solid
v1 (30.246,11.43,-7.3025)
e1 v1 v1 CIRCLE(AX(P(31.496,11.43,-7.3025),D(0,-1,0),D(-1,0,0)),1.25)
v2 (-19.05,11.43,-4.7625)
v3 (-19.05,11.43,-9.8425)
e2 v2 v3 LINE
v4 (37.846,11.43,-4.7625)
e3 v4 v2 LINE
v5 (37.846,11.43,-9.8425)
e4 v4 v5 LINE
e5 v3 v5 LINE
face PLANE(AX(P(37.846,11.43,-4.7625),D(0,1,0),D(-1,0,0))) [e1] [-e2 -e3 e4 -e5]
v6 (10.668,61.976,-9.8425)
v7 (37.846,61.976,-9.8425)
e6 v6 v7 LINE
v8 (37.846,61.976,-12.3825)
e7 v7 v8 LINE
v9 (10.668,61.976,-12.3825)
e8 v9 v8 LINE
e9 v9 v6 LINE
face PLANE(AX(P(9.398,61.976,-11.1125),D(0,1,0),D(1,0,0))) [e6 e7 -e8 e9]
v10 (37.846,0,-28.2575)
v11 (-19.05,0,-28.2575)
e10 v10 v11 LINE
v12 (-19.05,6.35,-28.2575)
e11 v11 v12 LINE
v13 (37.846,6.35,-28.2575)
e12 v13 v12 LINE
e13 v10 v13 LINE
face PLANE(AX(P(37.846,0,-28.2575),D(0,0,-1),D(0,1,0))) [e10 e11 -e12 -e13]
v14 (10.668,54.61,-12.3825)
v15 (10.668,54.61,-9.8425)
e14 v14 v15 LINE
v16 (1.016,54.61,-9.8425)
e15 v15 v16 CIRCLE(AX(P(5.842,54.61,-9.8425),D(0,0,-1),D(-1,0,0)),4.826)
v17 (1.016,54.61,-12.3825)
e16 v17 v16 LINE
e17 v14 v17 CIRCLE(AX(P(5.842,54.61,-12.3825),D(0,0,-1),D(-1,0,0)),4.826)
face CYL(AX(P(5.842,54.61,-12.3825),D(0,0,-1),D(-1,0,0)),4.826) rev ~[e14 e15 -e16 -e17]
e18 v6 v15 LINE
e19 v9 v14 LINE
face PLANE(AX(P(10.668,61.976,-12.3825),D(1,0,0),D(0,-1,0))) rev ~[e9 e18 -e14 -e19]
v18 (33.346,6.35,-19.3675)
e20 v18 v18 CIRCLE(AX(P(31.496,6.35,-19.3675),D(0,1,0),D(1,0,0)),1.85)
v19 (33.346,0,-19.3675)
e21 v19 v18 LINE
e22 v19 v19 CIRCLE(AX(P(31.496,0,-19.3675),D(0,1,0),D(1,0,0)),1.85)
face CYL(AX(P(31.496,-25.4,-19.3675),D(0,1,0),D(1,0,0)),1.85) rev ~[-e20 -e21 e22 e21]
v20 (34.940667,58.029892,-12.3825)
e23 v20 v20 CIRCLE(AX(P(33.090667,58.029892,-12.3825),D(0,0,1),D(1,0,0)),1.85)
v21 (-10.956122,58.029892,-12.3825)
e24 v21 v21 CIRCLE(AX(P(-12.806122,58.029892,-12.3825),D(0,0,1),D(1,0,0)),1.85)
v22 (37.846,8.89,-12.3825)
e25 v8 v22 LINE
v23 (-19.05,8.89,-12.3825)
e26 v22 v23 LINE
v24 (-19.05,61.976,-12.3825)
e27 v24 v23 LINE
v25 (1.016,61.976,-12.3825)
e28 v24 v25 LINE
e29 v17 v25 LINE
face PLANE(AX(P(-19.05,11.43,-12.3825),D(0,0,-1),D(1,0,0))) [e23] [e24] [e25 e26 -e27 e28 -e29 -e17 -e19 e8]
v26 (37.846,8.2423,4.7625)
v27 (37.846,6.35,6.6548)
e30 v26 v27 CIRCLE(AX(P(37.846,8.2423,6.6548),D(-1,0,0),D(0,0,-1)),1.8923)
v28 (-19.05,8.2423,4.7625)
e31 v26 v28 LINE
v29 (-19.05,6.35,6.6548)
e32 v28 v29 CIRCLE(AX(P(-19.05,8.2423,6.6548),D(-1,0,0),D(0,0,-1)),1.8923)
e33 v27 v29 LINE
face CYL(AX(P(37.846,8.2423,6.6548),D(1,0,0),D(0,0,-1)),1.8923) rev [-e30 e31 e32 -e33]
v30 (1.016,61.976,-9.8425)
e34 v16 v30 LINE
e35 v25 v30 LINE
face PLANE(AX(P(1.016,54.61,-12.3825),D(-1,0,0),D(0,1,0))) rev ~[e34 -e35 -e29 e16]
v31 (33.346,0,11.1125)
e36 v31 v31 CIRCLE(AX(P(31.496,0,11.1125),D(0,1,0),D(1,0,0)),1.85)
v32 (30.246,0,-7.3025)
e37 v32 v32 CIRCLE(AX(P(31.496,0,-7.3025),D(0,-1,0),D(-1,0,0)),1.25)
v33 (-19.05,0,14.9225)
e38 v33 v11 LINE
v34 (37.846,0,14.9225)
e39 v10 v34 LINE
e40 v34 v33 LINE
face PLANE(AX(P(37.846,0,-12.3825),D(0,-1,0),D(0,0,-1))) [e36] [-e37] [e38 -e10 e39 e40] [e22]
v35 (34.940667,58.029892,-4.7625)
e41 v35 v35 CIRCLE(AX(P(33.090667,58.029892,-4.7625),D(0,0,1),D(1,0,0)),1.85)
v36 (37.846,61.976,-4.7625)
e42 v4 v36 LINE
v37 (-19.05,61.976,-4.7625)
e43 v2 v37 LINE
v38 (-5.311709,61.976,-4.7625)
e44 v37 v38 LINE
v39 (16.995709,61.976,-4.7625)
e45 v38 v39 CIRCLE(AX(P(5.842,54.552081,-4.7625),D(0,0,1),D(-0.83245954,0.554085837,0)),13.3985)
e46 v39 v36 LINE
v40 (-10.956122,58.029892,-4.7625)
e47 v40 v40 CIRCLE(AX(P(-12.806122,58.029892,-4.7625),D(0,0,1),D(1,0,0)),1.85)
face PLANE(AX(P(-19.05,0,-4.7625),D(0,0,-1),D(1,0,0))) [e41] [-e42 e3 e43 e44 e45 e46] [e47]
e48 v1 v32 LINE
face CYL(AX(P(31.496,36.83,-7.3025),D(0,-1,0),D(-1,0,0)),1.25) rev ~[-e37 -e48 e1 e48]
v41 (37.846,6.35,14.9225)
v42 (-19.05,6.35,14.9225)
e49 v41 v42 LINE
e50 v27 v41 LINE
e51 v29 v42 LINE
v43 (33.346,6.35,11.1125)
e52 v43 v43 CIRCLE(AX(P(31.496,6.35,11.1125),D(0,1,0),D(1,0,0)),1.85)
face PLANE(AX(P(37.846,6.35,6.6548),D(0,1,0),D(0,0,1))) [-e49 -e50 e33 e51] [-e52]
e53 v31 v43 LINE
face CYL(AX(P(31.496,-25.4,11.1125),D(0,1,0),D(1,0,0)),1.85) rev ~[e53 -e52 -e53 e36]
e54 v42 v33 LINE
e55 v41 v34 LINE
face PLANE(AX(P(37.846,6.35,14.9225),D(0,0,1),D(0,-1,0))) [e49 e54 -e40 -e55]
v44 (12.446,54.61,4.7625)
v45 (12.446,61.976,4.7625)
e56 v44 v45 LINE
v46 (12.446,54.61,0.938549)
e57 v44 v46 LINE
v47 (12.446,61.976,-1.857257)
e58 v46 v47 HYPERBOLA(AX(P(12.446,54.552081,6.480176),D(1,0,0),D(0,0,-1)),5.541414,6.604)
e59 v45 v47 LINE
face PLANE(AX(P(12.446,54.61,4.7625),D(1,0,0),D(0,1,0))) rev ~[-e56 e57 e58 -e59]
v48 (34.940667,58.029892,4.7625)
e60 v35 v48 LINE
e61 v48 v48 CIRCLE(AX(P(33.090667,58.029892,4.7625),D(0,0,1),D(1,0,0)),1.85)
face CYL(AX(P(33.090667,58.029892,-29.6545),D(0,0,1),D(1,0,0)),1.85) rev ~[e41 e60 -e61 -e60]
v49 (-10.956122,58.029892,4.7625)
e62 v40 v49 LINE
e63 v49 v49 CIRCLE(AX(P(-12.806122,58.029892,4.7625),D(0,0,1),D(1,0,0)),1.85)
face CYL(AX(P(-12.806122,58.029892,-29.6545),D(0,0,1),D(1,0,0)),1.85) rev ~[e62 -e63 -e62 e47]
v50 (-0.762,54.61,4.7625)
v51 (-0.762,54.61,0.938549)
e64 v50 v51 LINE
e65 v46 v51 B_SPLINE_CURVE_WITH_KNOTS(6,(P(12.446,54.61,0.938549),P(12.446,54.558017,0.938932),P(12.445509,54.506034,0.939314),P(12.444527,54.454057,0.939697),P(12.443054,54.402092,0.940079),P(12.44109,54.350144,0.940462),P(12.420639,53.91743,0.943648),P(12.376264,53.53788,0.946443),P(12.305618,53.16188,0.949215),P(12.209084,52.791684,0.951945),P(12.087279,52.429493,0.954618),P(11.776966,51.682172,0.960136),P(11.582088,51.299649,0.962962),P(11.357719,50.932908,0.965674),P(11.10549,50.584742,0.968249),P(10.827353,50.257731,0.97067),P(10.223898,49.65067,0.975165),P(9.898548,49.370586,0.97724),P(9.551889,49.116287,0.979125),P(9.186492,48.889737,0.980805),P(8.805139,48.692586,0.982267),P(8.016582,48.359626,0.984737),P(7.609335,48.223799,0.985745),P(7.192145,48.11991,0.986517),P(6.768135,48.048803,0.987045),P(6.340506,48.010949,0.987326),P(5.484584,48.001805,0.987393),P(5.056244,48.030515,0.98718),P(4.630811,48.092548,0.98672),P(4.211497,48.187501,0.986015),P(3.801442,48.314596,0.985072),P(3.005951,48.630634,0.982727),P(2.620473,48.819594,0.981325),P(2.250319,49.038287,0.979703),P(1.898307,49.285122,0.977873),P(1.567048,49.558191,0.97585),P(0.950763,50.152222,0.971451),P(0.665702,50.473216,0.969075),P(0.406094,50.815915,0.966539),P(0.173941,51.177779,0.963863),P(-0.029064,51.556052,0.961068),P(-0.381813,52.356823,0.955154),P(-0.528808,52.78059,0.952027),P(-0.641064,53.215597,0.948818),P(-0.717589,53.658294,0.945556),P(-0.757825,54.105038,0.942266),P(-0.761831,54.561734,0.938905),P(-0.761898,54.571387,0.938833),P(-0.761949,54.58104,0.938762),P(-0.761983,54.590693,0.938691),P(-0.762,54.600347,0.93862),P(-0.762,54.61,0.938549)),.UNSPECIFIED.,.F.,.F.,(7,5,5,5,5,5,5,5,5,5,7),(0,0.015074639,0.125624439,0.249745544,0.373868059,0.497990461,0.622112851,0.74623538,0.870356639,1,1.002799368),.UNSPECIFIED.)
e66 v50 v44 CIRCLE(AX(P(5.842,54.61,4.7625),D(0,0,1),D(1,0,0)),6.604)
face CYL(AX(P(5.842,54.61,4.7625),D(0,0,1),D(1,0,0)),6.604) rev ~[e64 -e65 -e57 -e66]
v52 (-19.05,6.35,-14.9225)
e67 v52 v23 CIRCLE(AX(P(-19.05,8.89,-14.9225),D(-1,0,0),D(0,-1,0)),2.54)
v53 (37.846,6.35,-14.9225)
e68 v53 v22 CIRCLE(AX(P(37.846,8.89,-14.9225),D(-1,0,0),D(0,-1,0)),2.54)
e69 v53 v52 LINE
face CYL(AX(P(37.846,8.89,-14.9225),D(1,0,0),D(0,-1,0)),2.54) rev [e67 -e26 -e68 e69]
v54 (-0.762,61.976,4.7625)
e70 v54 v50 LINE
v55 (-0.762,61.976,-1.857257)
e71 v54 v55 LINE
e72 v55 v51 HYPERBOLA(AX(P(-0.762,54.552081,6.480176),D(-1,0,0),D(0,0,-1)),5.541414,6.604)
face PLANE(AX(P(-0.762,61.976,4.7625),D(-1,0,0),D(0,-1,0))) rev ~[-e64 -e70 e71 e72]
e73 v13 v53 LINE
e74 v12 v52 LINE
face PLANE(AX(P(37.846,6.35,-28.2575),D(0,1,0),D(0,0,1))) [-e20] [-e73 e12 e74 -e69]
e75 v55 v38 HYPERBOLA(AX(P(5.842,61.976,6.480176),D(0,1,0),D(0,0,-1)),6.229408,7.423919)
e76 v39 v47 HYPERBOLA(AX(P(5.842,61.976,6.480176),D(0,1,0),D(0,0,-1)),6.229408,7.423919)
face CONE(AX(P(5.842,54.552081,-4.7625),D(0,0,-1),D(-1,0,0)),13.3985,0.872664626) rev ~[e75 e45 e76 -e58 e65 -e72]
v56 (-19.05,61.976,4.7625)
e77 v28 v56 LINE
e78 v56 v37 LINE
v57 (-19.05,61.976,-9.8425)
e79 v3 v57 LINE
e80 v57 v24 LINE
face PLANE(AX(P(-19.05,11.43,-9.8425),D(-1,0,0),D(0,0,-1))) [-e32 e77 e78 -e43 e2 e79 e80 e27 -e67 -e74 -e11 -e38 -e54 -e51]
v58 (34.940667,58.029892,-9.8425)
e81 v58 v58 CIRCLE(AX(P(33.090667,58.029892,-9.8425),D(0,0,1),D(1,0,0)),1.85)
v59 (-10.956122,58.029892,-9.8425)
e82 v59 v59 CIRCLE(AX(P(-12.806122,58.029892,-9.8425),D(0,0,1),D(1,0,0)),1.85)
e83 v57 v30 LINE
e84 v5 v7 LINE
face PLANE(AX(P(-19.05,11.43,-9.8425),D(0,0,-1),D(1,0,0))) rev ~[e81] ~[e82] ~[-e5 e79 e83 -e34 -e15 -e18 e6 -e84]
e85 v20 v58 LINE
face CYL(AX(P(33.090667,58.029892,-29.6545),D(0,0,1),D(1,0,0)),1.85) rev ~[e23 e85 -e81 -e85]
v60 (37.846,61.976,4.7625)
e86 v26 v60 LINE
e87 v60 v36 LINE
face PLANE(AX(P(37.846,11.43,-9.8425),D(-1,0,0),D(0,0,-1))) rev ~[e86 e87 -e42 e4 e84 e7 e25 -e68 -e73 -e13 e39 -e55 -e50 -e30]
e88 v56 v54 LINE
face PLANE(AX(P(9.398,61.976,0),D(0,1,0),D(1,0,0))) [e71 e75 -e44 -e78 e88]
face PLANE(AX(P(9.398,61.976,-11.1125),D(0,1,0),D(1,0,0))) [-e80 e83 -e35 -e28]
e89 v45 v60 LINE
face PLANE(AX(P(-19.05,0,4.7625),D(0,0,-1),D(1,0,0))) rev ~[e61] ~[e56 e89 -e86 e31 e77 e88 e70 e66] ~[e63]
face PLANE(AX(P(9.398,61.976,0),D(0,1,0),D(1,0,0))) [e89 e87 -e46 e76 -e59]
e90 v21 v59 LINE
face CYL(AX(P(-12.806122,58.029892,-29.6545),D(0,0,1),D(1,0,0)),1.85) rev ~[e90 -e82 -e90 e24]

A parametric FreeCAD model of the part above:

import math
import FreeCAD as App
import Part
import Sketcher
Q = App.Units.Quantity


def faces_at(feature, points):
    """Names of the faces that lie closest to the given points."""
    faces = feature.Shape.Faces
    near = lambda p: min(range(len(faces)), key=lambda i: faces[i].distToShape(Part.Vertex(*p))[0])
    return sorted({f"Face{near(p) + 1}" for p in points})


def add_polygon(sketch, points):
    """Adds a closed chain of lines whose ends are joined by coincident constraints."""
    first, n = sketch.GeometryCount, len(points)
    for a, b in zip(points, points[1:] + points[:1]):
        sketch.addGeometry(Part.LineSegment(App.Vector(*a, 0), App.Vector(*b, 0)), False)
    for i in range(n):
        sketch.addConstraint(Sketcher.Constraint("Coincident", first + i, 2, first + (i + 1) % n, 1))

doc = App.newDocument("Part")
body = doc.addObject("PartDesign::Body", "Body")

sketch1 = body.newObject("Sketcher::SketchObject", "Sketch")
sketch1.AttachmentSupport = (doc.getObject("XZ_Plane"), [""])
sketch1.MapMode = "FlatFace"
add_polygon(sketch1, [(-19, -5), (-19, 5), (38, 5), (38, -5)])
sketch1.addConstraint([
    Sketcher.Constraint("Vertical", 0),
    Sketcher.Constraint("Horizontal", 1),
    Sketcher.Constraint("Vertical", 2),
    Sketcher.Constraint("Horizontal", 3),
    Sketcher.Constraint("DistanceX", 1, 1, 1, 2, Q("2.24 in")),
    Sketcher.Constraint("DistanceY", 0, 1, 0, 2, Q("0.375 in")),
    Sketcher.Constraint("DistanceX", 0, 2, -1, 1, Q("0.75 in")),
    Sketcher.Constraint("DistanceY", -1, 1, 0, 2, Q("0.1875 in")),
])
pad1 = body.newObject("PartDesign::Pad", "Pad")
pad1.Profile = sketch1
pad1.Length = Q("2.44 in")
pad1.Reversed = True
body2 = doc.addObject("PartDesign::Body", "Body001")

sketch2 = body2.newObject("Sketcher::SketchObject", "Sketch001")
sketch2.AttachmentSupport = (doc.getObject("XY_Plane001"), [""])
sketch2.MapMode = "FlatFace"
sketch2.AttachmentOffset = App.Placement(App.Vector(0, 0, -0.1875 * 25.4), App.Rotation())
sketch2.addGeometry(Part.Circle(App.Vector(6, 55, 0), App.Vector(0, 0, 1), 13), False)
sketch2.addConstraint([
    Sketcher.Constraint("Diameter", 0, Q("1.055 in")),
    Sketcher.Constraint("DistanceX", -1, 1, 0, 3, Q("0.23 in")),
    Sketcher.Constraint("DistanceY", -1, 1, 0, 3, 54.552081),
])
pad2 = body2.newObject("PartDesign::Pad", "Pad001")
pad2.Profile = sketch2
pad2.Length = Q("0.2315 in")
doc.recompute()

datumplane = body2.newObject("PartDesign::Plane", "DatumPlane")
datumplane.AttachmentSupport = (doc.getObject("XY_Plane001"), [""])
datumplane.MapMode = "FlatFace"
datumplane.AttachmentOffset = App.Placement(App.Vector(0, 0, -0.1875 * 25.4), App.Rotation())
draft = body2.newObject("PartDesign::Draft", "Draft")
draft.Base = (pad2, faces_at(pad2, [(19.241, 54.552, -1.822)]))
draft.NeutralPlane = (datumplane, [""])
draft.Angle = 50
draft.Reversed = False
doc.recompute()

boolean = body.newObject("PartDesign::Boolean", "Boolean")
boolean.Type = "Cut"
boolean.addObjects([body2])

sketch3 = body.newObject("Sketcher::SketchObject", "Sketch002")
sketch3.AttachmentSupport = (doc.getObject("XY_Plane"), [""])
sketch3.MapMode = "FlatFace"
sketch3.AttachmentOffset = App.Placement(App.Vector(0, 0, -0.1875 * 25.4), App.Rotation())
add_polygon(sketch3, [(38, 11), (38, 0), (-19, 0), (-19, 11)])
sketch3.addConstraint([
    Sketcher.Constraint("Vertical", 0),
    Sketcher.Constraint("Horizontal", 1),
    Sketcher.Constraint("Vertical", 2),
    Sketcher.Constraint("Horizontal", 3),
    Sketcher.Constraint("PointOnObject", 0, 2, -1),
    Sketcher.Constraint("DistanceX", 1, 2, 1, 1, Q("2.24 in")),
    Sketcher.Constraint("DistanceY", 0, 2, 0, 1, Q("0.45 in")),
    Sketcher.Constraint("DistanceX", -1, 1, 0, 2, Q("1.49 in")),
])
pad3 = body.newObject("PartDesign::Pad", "Pad002")
pad3.Profile = sketch3
pad3.Length = Q("0.3 in")
pad3.Reversed = True

sketch4 = body.newObject("Sketcher::SketchObject", "Sketch003")
sketch4.AttachmentSupport = (doc.getObject("XZ_Plane"), [""])
sketch4.MapMode = "FlatFace"
sketch4.AttachmentOffset = App.Placement(App.Vector(0, 0, -0.45 * 25.4), App.Rotation())
sketch4.addGeometry(Part.Circle(App.Vector(31.5, -7.3, 0), App.Vector(0, 0, 1), 1.2), False)
sketch4.addConstraint([
    Sketcher.Constraint("Diameter", 0, 2.5),
    Sketcher.Constraint("DistanceX", -1, 1, 0, 3, Q("1.24 in")),
    Sketcher.Constraint("DistanceY", 0, 3, -1, 1, Q("0.2875 in")),
])
doc.recompute()
hole = body.newObject("PartDesign::Hole", "Hole")
hole.Profile = sketch4
hole.ThreadType = "None"
hole.Diameter = 2.5
hole.DepthType = "Dimension"
hole.Depth = Q("1 in")
hole.DrillPoint = "Angled"
hole.DrillPointAngle = 118
hole.Reversed = True

sketch5 = body.newObject("Sketcher::SketchObject", "Sketch004")
sketch5.AttachmentSupport = (doc.getObject("YZ_Plane"), [""])
sketch5.MapMode = "FlatFace"
sketch5.AttachmentOffset = App.Placement(App.Vector(0, 0, 1.49 * 25.4), App.Rotation())
sketch5.addGeometry([
    Part.LineSegment(App.Vector(8.9, -12.4, 0), App.Vector(0, -12.4, 0)),
    Part.LineSegment(App.Vector(0, -12.4, 0), App.Vector(0, -28.3, 0)),
    Part.LineSegment(App.Vector(0, -28.3, 0), App.Vector(6.3, -28.3, 0)),
    Part.LineSegment(App.Vector(6.3, -28.3, 0), App.Vector(6.3, -14.9, 0)),
    Part.ArcOfCircle(Part.Circle(App.Vector(8.9, -14.9, 0), App.Vector(0, 0, 1), 2.5), math.radians(90), math.radians(180)),
    Part.LineSegment(App.Vector(0, 14.9, 0), App.Vector(0, 4.8, 0)),
    Part.LineSegment(App.Vector(0, 4.8, 0), App.Vector(8.2, 4.8, 0)),
    Part.ArcOfCircle(Part.Circle(App.Vector(8.2, 6.7, 0), App.Vector(0, 0, 1), 1.9), math.radians(180), math.radians(270)),
    Part.LineSegment(App.Vector(6.3, 6.7, 0), App.Vector(6.3, 14.9, 0)),
    Part.LineSegment(App.Vector(6.3, 14.9, 0), App.Vector(0, 14.9, 0)),
], False)
sketch5.addConstraint([
    Sketcher.Constraint("Coincident", 0, 2, 1, 1),
    Sketcher.Constraint("Coincident", 1, 2, 2, 1),
    Sketcher.Constraint("Coincident", 2, 2, 3, 1),
    Sketcher.Constraint("Tangent", 3, 2, 4, 2),
    Sketcher.Constraint("Tangent", 4, 1, 0, 1),
    Sketcher.Constraint("Coincident", 5, 2, 6, 1),
    Sketcher.Constraint("Tangent", 6, 2, 7, 2),
    Sketcher.Constraint("Tangent", 7, 1, 8, 1),
    Sketcher.Constraint("Coincident", 8, 2, 9, 1),
    Sketcher.Constraint("Coincident", 9, 2, 5, 1),
    Sketcher.Constraint("Horizontal", 0),
    Sketcher.Constraint("Vertical", 1),
    Sketcher.Constraint("Horizontal", 2),
    Sketcher.Constraint("Vertical", 3),
    Sketcher.Constraint("Vertical", 5),
    Sketcher.Constraint("Horizontal", 6),
    Sketcher.Constraint("Vertical", 8),
    Sketcher.Constraint("Horizontal", 9),
    Sketcher.Constraint("Symmetric", 3, 2, 8, 2, -1),
    Sketcher.Constraint("PointOnObject", 0, 2, -2),
    Sketcher.Constraint("PointOnObject", 5, 2, -2),
    Sketcher.Constraint("Radius", 4, Q("0.1 in")),
    Sketcher.Constraint("DistanceY", 5, 2, 5, 1, Q("0.4 in")),
    Sketcher.Constraint("DistanceX", 0, 2, 0, 1, Q("0.35 in")),
    Sketcher.Constraint("Radius", 7, Q("0.0745 in")),
    Sketcher.Constraint("DistanceY", 1, 2, 1, 1, Q("0.625 in")),
    Sketcher.Constraint("DistanceY", -1, 1, 7, 3, Q("0.262 in")),
])
pad4 = body.newObject("PartDesign::Pad", "Pad003")
pad4.Profile = sketch5
pad4.Length = Q("2.24 in")
pad4.Reversed = True

sketch6 = body.newObject("Sketcher::SketchObject", "Sketch005")
sketch6.AttachmentSupport = (doc.getObject("XZ_Plane"), [""])
sketch6.MapMode = "FlatFace"
sketch6.addGeometry([
    Part.Circle(App.Vector(31.5, 11.1, 0), App.Vector(0, 0, 1), 1.9),
    Part.Circle(App.Vector(31.5, -19.4, 0), App.Vector(0, 0, 1), 1.9),
], False)
sketch6.addConstraint([
    Sketcher.Constraint("Equal", 0, 1),
    Sketcher.Constraint("Vertical", 0, 3, 1, 3),
    Sketcher.Constraint("DistanceY", 1, 3, 0, 3, Q("1.2 in")),
    Sketcher.Constraint("Diameter", 0, 3.7),
    Sketcher.Constraint("DistanceX", -1, 1, 0, 3, Q("1.24 in")),
    Sketcher.Constraint("DistanceY", -1, 1, 0, 3, Q("0.4375 in")),
])
doc.recompute()
hole2 = body.newObject("PartDesign::Hole", "Hole001")
hole2.Profile = sketch6
hole2.ThreadType = "None"
hole2.Diameter = 3.7
hole2.DepthType = "Dimension"
hole2.Depth = Q("1 in")
hole2.DrillPoint = "Angled"
hole2.DrillPointAngle = 118

sketch7 = body.newObject("Sketcher::SketchObject", "Sketch006")
sketch7.AttachmentSupport = (doc.getObject("XZ_Plane"), [""])
sketch7.MapMode = "FlatFace"
sketch7.AttachmentOffset = App.Placement(App.Vector(0, 0, -0.45 * 25.4), App.Rotation())
add_polygon(sketch7, [(-19.1, -12.4), (-19.1, -9.8), (37.8, -9.8), (37.8, -12.4)])
sketch7.addConstraint([
    Sketcher.Constraint("Vertical", 0),
    Sketcher.Constraint("Horizontal", 1),
    Sketcher.Constraint("Vertical", 2),
    Sketcher.Constraint("Horizontal", 3),
    Sketcher.Constraint("DistanceY", 0, 1, 0, 2, Q("0.1 in")),
    Sketcher.Constraint("DistanceX", 1, 1, 1, 2, Q("2.24 in")),
    Sketcher.Constraint("DistanceX", 0, 2, -1, 1, Q("0.75 in")),
    Sketcher.Constraint("DistanceY", 0, 2, -1, 1, Q("0.3875 in")),
])
pad5 = body.newObject("PartDesign::Pad", "Pad004")
pad5.Profile = sketch7
pad5.Length = Q("1.99 in")
pad5.Reversed = True

sketch8 = body.newObject("Sketcher::SketchObject", "Sketch007")
sketch8.AttachmentSupport = (doc.getObject("XY_Plane"), [""])
sketch8.MapMode = "FlatFace"
sketch8.AttachmentOffset = App.Placement(App.Vector(0, 0, -0.4875 * 25.4), App.Rotation())
sketch8.addGeometry([
    Part.LineSegment(App.Vector(1, 54.6, 0), App.Vector(1, 62, 0)),
    Part.LineSegment(App.Vector(1, 62, 0), App.Vector(10.7, 62, 0)),
    Part.LineSegment(App.Vector(10.7, 62, 0), App.Vector(10.7, 54.6, 0)),
    Part.ArcOfCircle(Part.Circle(App.Vector(5.8, 54.6, 0), App.Vector(0, 0, 1), 4.8), math.radians(180), math.radians(360)),
], False)
sketch8.addConstraint([
    Sketcher.Constraint("Coincident", 0, 2, 1, 1),
    Sketcher.Constraint("Coincident", 1, 2, 2, 1),
    Sketcher.Constraint("Tangent", 2, 2, 3, 2),
    Sketcher.Constraint("Tangent", 3, 1, 0, 1),
    Sketcher.Constraint("Vertical", 0),
    Sketcher.Constraint("Horizontal", 1),
    Sketcher.Constraint("Vertical", 2),
    Sketcher.Constraint("Radius", 3, Q("0.19 in")),
    Sketcher.Constraint("DistanceY", 0, 1, 0, 2, Q("0.29 in")),
    Sketcher.Constraint("DistanceX", -1, 1, 3, 3, Q("0.23 in")),
    Sketcher.Constraint("DistanceY", -1, 1, 3, 3, Q("2.15 in")),
])
pocket1 = body.newObject("PartDesign::Pocket", "Pocket")
pocket1.Profile = sketch8
pocket1.Length = Q("0.1 in")
pocket1.Reversed = True

sketch9 = body.newObject("Sketcher::SketchObject", "Sketch008")
sketch9.AttachmentSupport = (doc.getObject("XY_Plane"), [""])
sketch9.MapMode = "FlatFace"
sketch9.AttachmentOffset = App.Placement(App.Vector(0, 0, 0.1875 * 25.4), App.Rotation())
sketch9.addGeometry([
    Part.LineSegment(App.Vector(12, 55, 0), App.Vector(12, 62, 0)),
    Part.LineSegment(App.Vector(12, 62, 0), App.Vector(-1, 62, 0)),
    Part.LineSegment(App.Vector(-1, 62, 0), App.Vector(-1, 55, 0)),
    Part.ArcOfCircle(Part.Circle(App.Vector(6, 55, 0), App.Vector(0, 0, 1), 7), math.radians(180), math.radians(360)),
], False)
sketch9.addConstraint([
    Sketcher.Constraint("Coincident", 0, 2, 1, 1),
    Sketcher.Constraint("Coincident", 1, 2, 2, 1),
    Sketcher.Constraint("Tangent", 2, 2, 3, 1),
    Sketcher.Constraint("Tangent", 3, 2, 0, 1),
    Sketcher.Constraint("Vertical", 0),
    Sketcher.Constraint("Horizontal", 1),
    Sketcher.Constraint("Vertical", 2),
    Sketcher.Constraint("Radius", 3, Q("0.26 in")),
    Sketcher.Constraint("DistanceY", 0, 1, 0, 2, Q("0.29 in")),
    Sketcher.Constraint("DistanceX", -1, 1, 3, 3, Q("0.23 in")),
    Sketcher.Constraint("DistanceY", -1, 1, 3, 3, Q("2.15 in")),
])
pocket2 = body.newObject("PartDesign::Pocket", "Pocket001")
pocket2.Profile = sketch9
pocket2.Length = Q("0.29 in")

sketch10 = body.newObject("Sketcher::SketchObject", "Sketch009")
sketch10.AttachmentSupport = (doc.getObject("XY_Plane"), [""])
sketch10.MapMode = "FlatFace"
sketch10.AttachmentOffset = App.Placement(App.Vector(0, 0, -0.4875 * 25.4), App.Rotation())
sketch10.addGeometry([
    Part.Circle(App.Vector(33.1, 58, 0), App.Vector(0, 0, 1), 1.9),
    Part.Circle(App.Vector(-12.8, 58, 0), App.Vector(0, 0, 1), 1.9),
], False)
sketch10.addConstraint([
    Sketcher.Constraint("Equal", 0, 1),
    Sketcher.Constraint("Horizontal", 0, 3, 1, 3),
    Sketcher.Constraint("Diameter", 0, 3.7),
    Sketcher.Constraint("DistanceY", -1, 1, 0, 3, 58.029892),
    Sketcher.Constraint("DistanceX", 1, 3, 0, 3, 45.896789),
    Sketcher.Constraint("DistanceX", -1, 1, 0, 3, 33.090667),
])
doc.recompute()
hole3 = body.newObject("PartDesign::Hole", "Hole002")
hole3.Profile = sketch10
hole3.ThreadType = "None"
hole3.Diameter = 3.7
hole3.DepthType = "Dimension"
hole3.Depth = Q("0.68 in")
hole3.DrillPoint = "Angled"
hole3.DrillPointAngle = 118
hole3.Reversed = True

doc.recompute()
